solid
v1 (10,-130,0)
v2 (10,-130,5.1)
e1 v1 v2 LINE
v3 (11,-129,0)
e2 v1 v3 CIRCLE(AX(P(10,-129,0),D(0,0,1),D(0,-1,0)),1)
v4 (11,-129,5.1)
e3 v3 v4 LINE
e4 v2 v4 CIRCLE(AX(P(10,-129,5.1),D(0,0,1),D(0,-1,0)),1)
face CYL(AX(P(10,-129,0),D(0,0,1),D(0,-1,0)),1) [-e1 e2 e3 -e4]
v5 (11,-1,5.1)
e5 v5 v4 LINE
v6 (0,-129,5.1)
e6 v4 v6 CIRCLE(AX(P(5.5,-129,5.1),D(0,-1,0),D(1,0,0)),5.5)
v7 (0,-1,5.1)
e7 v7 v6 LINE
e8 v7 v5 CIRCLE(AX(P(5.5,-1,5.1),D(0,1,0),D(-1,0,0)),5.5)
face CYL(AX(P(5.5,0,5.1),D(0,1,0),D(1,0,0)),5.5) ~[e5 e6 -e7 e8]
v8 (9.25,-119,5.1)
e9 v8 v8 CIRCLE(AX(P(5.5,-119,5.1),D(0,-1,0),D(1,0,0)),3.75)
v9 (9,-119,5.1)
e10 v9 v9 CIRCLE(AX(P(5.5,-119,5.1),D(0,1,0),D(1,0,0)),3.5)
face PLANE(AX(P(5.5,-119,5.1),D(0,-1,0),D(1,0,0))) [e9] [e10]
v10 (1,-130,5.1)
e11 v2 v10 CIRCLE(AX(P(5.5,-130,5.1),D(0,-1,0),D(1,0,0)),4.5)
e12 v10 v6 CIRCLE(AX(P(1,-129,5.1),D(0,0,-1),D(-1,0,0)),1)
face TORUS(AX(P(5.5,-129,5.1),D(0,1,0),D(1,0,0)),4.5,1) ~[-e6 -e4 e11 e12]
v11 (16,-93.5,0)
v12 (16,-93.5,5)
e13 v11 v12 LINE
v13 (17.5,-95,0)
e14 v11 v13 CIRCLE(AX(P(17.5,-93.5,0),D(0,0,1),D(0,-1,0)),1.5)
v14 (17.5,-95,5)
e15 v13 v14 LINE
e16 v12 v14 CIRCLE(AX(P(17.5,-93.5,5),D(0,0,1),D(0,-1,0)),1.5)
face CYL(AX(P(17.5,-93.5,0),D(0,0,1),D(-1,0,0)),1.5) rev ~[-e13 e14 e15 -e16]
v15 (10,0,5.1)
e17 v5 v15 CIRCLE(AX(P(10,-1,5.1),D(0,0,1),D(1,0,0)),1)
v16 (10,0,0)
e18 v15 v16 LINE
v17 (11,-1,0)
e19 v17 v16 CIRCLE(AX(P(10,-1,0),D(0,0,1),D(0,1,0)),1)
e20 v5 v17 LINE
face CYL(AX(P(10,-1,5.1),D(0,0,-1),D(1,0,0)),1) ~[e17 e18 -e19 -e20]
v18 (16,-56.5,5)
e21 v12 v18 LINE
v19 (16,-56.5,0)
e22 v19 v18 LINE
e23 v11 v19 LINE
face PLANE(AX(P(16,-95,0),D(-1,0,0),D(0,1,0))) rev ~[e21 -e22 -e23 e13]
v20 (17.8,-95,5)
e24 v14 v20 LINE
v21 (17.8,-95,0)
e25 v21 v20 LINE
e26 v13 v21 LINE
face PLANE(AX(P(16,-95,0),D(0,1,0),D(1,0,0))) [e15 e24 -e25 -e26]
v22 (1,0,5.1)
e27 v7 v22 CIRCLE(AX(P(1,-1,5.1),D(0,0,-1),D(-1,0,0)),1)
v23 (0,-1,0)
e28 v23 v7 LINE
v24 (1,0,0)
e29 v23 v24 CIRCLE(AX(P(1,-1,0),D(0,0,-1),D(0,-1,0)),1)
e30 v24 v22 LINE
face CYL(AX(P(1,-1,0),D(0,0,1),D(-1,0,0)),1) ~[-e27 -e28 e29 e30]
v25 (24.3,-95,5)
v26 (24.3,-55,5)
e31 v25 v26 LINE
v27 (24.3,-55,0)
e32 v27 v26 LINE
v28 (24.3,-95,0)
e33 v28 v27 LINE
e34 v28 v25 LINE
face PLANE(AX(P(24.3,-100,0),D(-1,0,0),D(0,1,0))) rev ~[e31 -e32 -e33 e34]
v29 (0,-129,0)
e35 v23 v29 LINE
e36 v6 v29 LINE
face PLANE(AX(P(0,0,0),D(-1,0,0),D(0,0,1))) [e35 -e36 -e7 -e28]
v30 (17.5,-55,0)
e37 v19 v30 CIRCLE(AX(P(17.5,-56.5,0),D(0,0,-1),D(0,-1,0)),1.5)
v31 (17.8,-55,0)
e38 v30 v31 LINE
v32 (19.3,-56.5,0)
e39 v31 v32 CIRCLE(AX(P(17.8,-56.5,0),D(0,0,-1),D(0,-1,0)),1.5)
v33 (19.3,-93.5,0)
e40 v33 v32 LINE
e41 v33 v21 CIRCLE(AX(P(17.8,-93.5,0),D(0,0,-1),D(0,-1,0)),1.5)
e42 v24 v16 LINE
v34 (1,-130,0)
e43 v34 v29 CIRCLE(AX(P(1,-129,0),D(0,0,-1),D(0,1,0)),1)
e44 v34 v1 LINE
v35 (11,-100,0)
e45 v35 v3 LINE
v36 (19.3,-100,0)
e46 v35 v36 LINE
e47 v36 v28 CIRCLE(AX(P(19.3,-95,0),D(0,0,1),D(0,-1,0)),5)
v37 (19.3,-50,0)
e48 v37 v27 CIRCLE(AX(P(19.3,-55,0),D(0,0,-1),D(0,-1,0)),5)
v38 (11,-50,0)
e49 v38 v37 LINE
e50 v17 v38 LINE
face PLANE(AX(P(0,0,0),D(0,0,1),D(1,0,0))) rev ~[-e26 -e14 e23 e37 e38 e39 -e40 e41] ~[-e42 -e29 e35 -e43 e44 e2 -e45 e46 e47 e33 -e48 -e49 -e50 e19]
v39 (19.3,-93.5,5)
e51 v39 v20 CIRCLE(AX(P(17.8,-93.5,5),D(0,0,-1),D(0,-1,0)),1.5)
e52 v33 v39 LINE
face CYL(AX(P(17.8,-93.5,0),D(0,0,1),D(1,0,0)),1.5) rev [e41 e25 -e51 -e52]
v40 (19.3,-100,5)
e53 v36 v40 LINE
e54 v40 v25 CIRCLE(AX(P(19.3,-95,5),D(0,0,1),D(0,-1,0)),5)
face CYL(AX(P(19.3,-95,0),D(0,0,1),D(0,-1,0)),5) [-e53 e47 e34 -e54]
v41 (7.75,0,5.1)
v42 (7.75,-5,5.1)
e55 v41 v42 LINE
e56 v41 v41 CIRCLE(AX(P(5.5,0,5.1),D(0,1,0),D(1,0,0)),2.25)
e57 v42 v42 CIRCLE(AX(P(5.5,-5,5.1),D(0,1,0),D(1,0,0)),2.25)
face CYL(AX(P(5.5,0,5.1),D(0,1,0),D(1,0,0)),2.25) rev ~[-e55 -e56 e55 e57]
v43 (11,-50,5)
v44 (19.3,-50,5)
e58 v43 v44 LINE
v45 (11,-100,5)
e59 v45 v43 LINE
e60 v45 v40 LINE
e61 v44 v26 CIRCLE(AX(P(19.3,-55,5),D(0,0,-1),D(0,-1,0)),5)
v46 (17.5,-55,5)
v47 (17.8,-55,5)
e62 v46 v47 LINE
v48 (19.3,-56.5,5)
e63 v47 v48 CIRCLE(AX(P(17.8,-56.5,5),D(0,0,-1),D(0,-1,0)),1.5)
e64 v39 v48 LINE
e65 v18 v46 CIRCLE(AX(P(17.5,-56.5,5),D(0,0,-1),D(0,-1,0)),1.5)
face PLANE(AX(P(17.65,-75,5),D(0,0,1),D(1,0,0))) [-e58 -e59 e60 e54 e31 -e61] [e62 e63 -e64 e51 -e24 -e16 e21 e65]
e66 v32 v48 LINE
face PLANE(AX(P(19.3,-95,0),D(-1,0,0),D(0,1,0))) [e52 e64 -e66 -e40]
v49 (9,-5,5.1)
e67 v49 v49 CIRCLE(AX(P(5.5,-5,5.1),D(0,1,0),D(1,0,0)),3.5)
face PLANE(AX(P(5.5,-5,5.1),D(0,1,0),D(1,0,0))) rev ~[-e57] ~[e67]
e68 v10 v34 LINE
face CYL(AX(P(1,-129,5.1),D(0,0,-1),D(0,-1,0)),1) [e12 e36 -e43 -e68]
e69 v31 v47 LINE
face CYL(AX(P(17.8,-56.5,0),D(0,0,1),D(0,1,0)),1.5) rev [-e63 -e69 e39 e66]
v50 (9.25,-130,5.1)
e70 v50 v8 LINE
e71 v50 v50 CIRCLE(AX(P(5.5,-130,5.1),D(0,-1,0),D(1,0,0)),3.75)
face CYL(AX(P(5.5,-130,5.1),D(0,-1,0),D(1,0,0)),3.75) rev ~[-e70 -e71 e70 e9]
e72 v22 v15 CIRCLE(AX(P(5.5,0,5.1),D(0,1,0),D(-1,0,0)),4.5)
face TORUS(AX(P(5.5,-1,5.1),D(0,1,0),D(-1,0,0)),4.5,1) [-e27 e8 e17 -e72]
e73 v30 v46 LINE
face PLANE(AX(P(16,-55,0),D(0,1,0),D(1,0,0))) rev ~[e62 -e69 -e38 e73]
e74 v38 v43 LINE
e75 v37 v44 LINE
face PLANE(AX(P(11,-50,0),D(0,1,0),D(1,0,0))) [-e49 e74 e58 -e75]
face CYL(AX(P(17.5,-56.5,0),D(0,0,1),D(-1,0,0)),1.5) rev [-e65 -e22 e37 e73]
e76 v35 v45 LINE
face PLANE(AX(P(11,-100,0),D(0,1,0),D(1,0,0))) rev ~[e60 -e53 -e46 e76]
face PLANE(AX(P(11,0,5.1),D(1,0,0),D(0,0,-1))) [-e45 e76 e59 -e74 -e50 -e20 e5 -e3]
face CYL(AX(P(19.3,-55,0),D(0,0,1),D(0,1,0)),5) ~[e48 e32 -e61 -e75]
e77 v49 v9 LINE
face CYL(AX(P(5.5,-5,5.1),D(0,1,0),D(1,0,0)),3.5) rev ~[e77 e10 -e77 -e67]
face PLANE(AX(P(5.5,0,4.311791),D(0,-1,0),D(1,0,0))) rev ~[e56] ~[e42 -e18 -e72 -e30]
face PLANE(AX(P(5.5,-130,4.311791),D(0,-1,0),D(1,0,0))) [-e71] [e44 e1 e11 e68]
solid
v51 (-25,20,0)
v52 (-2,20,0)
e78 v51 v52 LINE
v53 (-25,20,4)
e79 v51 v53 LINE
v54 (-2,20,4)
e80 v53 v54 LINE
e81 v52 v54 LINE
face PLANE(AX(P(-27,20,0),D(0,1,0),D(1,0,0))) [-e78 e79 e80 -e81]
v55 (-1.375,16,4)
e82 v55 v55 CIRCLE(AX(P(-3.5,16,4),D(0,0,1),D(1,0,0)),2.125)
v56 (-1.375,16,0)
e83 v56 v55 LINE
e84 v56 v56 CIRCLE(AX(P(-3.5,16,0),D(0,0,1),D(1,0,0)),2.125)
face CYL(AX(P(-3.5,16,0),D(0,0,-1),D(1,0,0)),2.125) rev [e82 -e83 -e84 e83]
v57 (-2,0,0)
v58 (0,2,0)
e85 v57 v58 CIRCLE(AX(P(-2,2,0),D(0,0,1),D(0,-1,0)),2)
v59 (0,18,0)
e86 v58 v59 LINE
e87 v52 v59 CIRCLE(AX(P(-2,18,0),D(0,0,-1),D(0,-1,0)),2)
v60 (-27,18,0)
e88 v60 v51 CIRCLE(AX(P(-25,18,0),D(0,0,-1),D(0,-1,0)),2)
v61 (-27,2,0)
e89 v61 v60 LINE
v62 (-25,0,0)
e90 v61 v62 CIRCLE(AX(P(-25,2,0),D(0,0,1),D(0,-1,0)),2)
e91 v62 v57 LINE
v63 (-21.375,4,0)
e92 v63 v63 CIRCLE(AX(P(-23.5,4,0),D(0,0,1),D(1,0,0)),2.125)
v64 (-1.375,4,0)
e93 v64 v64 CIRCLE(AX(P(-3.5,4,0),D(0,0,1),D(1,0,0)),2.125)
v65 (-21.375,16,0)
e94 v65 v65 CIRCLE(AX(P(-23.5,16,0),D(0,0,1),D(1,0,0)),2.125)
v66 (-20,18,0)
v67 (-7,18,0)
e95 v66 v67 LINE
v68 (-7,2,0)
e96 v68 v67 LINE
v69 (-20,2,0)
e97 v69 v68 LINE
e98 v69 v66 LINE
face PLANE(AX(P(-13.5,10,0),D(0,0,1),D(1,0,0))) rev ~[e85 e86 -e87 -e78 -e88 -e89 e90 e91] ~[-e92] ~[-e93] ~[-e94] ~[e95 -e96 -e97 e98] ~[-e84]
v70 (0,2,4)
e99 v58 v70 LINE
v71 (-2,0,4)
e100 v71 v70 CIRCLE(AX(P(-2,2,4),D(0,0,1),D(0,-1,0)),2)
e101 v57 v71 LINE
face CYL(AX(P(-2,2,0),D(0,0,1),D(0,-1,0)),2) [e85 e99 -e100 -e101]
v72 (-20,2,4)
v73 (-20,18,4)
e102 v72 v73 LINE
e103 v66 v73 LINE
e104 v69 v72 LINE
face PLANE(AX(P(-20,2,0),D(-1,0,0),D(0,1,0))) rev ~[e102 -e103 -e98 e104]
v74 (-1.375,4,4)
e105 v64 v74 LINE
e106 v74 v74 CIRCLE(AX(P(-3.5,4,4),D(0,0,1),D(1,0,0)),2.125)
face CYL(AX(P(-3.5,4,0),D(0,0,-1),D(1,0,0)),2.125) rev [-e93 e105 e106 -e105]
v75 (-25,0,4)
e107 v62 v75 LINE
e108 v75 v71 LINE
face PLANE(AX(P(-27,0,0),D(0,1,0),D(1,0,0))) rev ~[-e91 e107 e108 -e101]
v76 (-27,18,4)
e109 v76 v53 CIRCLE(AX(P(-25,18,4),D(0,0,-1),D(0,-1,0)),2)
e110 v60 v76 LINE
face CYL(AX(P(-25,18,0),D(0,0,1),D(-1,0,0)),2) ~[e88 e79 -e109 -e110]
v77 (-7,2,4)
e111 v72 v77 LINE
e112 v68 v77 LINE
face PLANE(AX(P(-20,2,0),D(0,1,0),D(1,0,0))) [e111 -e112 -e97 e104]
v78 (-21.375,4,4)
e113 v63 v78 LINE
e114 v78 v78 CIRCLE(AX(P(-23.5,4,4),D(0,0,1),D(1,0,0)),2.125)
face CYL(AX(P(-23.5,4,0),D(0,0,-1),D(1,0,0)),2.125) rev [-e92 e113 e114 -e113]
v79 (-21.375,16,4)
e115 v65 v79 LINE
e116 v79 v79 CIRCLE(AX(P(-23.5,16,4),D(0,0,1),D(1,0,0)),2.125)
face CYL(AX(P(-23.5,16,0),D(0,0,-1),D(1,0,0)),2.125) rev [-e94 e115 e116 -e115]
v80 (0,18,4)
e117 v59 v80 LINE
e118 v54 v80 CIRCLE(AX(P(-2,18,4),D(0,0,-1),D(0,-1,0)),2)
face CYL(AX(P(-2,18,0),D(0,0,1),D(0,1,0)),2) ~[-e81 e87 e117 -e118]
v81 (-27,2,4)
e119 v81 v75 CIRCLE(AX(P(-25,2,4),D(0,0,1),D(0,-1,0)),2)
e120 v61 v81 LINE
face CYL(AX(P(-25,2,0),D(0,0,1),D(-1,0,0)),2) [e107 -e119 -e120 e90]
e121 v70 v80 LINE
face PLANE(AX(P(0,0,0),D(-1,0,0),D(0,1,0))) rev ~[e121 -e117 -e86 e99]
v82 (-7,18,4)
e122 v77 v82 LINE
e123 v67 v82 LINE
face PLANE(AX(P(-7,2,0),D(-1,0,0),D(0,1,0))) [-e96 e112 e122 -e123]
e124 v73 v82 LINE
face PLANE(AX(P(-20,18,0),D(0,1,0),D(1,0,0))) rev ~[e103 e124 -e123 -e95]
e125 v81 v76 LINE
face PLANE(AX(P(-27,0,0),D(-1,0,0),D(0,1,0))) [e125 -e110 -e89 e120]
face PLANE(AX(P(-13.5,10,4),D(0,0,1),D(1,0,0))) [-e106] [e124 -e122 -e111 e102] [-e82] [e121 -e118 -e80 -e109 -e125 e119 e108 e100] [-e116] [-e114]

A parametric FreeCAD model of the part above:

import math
import FreeCAD as App
import Part
import Sketcher


def edges_at(feature, points):
    """Names of the edges that pass closest to the given points."""
    edges = feature.Shape.Edges
    near = lambda p: min(range(len(edges)), key=lambda i: edges[i].distToShape(Part.Vertex(*p))[0])
    return sorted({f"Edge{near(p) + 1}" for p in points})


def add_polygon(sketch, points):
    """Adds a closed chain of lines whose ends are joined by coincident constraints."""
    first, n = sketch.GeometryCount, len(points)
    for a, b in zip(points, points[1:] + points[:1]):
        sketch.addGeometry(Part.LineSegment(App.Vector(*a, 0), App.Vector(*b, 0)), False)
    for i in range(n):
        sketch.addConstraint(Sketcher.Constraint("Coincident", first + i, 2, first + (i + 1) % n, 1))

doc = App.newDocument("Part")
body = doc.addObject("PartDesign::Body", "Body")

# Sketch on XZ plane
sketch1 = doc.addObject("Sketcher::SketchObject", "Sketch")
body.addObject(sketch1)
sketch1.AttachmentSupport = (doc.XZ_Plane, [""])
sketch1.MapMode = "FlatFace"
sketch1.addGeometry([
    Part.ArcOfCircle(Part.Circle(App.Vector(6, 5, 0), App.Vector(0, 0, 1), 6), math.radians(0), math.radians(180)),
    Part.LineSegment(App.Vector(0, 5, 0), App.Vector(0, 0, 0)),
    Part.LineSegment(App.Vector(0, 0, 0), App.Vector(11, 0, 0)),
    Part.LineSegment(App.Vector(11, 0, 0), App.Vector(11, 5, 0)),
], False)
sketch1.addConstraint([
    Sketcher.Constraint("Tangent", 0, 2, 1, 1),
    Sketcher.Constraint("Coincident", 1, 2, 2, 1),
    Sketcher.Constraint("Coincident", 2, 2, 3, 1),
    Sketcher.Constraint("Tangent", 3, 2, 0, 1),
    Sketcher.Constraint("Vertical", 1),
    Sketcher.Constraint("Horizontal", 2),
    Sketcher.Constraint("Vertical", 3),
    Sketcher.Constraint("Coincident", 1, 2, -1, 1),
    Sketcher.Constraint("Radius", 0, 5.5),
    Sketcher.Constraint("DistanceY", 1, 2, 1, 1, 5.1),
])
pad1 = doc.addObject("PartDesign::Pad", "Pad")
body.addObject(pad1)
pad1.Profile = sketch1
pad1.Length = 130

# Sketch on XZ plane
sketch2 = doc.addObject("Sketcher::SketchObject", "Sketch001")
body.addObject(sketch2)
sketch2.AttachmentSupport = (doc.XZ_Plane, [""])
sketch2.MapMode = "FlatFace"
sketch2.addGeometry(Part.Circle(App.Vector(5.5, 5.1, 0), App.Vector(0, 0, 1), 2.2), False)
sketch2.addConstraint([
    Sketcher.Constraint("Diameter", 0, 4.5),
    Sketcher.Constraint("DistanceX", -1, 1, 0, 3, 5.5),
    Sketcher.Constraint("DistanceY", -1, 1, 0, 3, 5.1),
])
pocket1 = doc.addObject("PartDesign::Pocket", "Pocket")
body.addObject(pocket1)
pocket1.Profile = sketch2
pocket1.Length = 5
pocket1.Reversed = True

# Sketch on XZ plane
sketch3 = doc.addObject("Sketcher::SketchObject", "Sketch002")
body.addObject(sketch3)
sketch3.AttachmentSupport = (doc.XZ_Plane, [""])
sketch3.MapMode = "FlatFace"
sketch3.AttachmentOffset = App.Placement(App.Vector(0, 0, 5), App.Rotation())
sketch3.addGeometry(Part.Circle(App.Vector(5.5, 5.1, 0), App.Vector(0, 0, 1), 3.5), False)
sketch3.addConstraint([
    Sketcher.Constraint("Diameter", 0, 7.0),
    Sketcher.Constraint("DistanceX", -1, 1, 0, 3, 5.5),
    Sketcher.Constraint("DistanceY", -1, 1, 0, 3, 5.1),
])
pocket2 = doc.addObject("PartDesign::Pocket", "Pocket001")
body.addObject(pocket2)
pocket2.Profile = sketch3
pocket2.Length = 114
pocket2.Reversed = True

# Sketch on XZ plane
sketch4 = doc.addObject("Sketcher::SketchObject", "Sketch003")
body.addObject(sketch4)
sketch4.AttachmentSupport = (doc.XZ_Plane, [""])
sketch4.MapMode = "FlatFace"
sketch4.AttachmentOffset = App.Placement(App.Vector(0, 0, 130), App.Rotation())
sketch4.addGeometry(Part.Circle(App.Vector(5.5, 5.1, 0), App.Vector(0, 0, 1), 3.8), False)
sketch4.addConstraint([
    Sketcher.Constraint("Diameter", 0, 7.5),
    Sketcher.Constraint("DistanceX", -1, 1, 0, 3, 5.5),
    Sketcher.Constraint("DistanceY", -1, 1, 0, 3, 5.1),
])
pocket3 = doc.addObject("PartDesign::Pocket", "Pocket002")
body.addObject(pocket3)
pocket3.Profile = sketch4
pocket3.Length = 11

# Sketch on XY plane
sketch5 = doc.addObject("Sketcher::SketchObject", "Sketch004")
body.addObject(sketch5)
sketch5.AttachmentSupport = (doc.XY_Plane, [""])
sketch5.MapMode = "FlatFace"
add_polygon(sketch5, [(11, -50), (11, -100), (24.3, -100), (24.3, -50)])  # lines 0-3
add_polygon(sketch5, [(19.3, -95), (16, -95), (16, -55), (19.3, -55)])  # lines 4-7
sketch5.addConstraint([
    Sketcher.Constraint("Vertical", 0),
    Sketcher.Constraint("Horizontal", 1),
    Sketcher.Constraint("Vertical", 2),
    Sketcher.Constraint("Horizontal", 3),
    Sketcher.Constraint("Horizontal", 4),
    Sketcher.Constraint("Vertical", 5),
    Sketcher.Constraint("Horizontal", 6),
    Sketcher.Constraint("Vertical", 7),
    Sketcher.Constraint("DistanceY", 0, 2, 0, 1, 50.0),
    Sketcher.Constraint("DistanceY", 5, 1, 5, 2, 40.0),
    Sketcher.Constraint("DistanceX", 1, 1, 1, 2, 13.3),
    Sketcher.Constraint("DistanceX", 4, 2, 4, 1, 3.3),
    Sketcher.Constraint("DistanceX", -1, 1, 0, 2, 11.0),
    Sketcher.Constraint("DistanceY", 0, 2, -1, 1, 100.0),
    Sketcher.Constraint("DistanceX", -1, 1, 4, 2, 16.0),
    Sketcher.Constraint("DistanceY", 4, 2, -1, 1, 95.0),
])
pad2 = doc.addObject("PartDesign::Pad", "Pad001")
body.addObject(pad2)
pad2.Profile = sketch5
pad2.Length = 5
doc.recompute()

fillet = doc.addObject("PartDesign::Fillet", "Fillet")
body.addObject(fillet)
fillet.Base = (pad2, edges_at(pad2, [(24.3, -50, 2.5), (24.3, -100, 2.5)]))
fillet.Radius = 5
doc.recompute()

fillet2 = doc.addObject("PartDesign::Fillet", "Fillet001")
body.addObject(fillet2)
fillet2.Base = (fillet, edges_at(fillet, [
    (16, -95, 2.5),
    (19.3, -95, 2.5),
    (19.3, -55, 2.5),
    (16, -55, 2.5),
]))
fillet2.Radius = 1.5
doc.recompute()

fillet3 = doc.addObject("PartDesign::Fillet", "Fillet002")
body.addObject(fillet3)
fillet3.Base = (fillet2, edges_at(fillet2, [
    (5.5, -130, 10.6),
    (11, -130, 2.55),
    (11, 0, 2.55),
    (5.5, 0, 10.6),
    (0, 0, 2.55),
    (0, -130, 2.55),
]))
fillet3.Radius = 1
body2 = doc.addObject("PartDesign::Body", "Body001")

# Sketch on XY plane
sketch6 = doc.addObject("Sketcher::SketchObject", "Sketch005")
body2.addObject(sketch6)
sketch6.AttachmentSupport = (doc.getObject("XY_Plane001"), [""])
sketch6.MapMode = "FlatFace"
add_polygon(sketch6, [(-27, 20), (-27, 0), (0, 0), (0, 20)])  # lines 0-3
sketch6.addGeometry(Part.Circle(App.Vector(-23.5, 4, 0), App.Vector(0, 0, 1), 2.1), False)  # 4
sketch6.addGeometry(Part.Circle(App.Vector(-3.5, 4, 0), App.Vector(0, 0, 1), 2.1), False)  # 5
sketch6.addGeometry(Part.Circle(App.Vector(-23.5, 16, 0), App.Vector(0, 0, 1), 2.1), False)  # 6
add_polygon(sketch6, [(-7, 2), (-20, 2), (-20, 18), (-7, 18)])  # lines 7-10
sketch6.addGeometry(Part.Circle(App.Vector(-3.5, 16, 0), App.Vector(0, 0, 1), 2.1), False)  # 11
sketch6.addConstraint([
    Sketcher.Constraint("Vertical", 0),
    Sketcher.Constraint("Horizontal", 1),
    Sketcher.Constraint("Vertical", 2),
    Sketcher.Constraint("Horizontal", 3),
    Sketcher.Constraint("Horizontal", 7),
    Sketcher.Constraint("Vertical", 8),
    Sketcher.Constraint("Horizontal", 9),
    Sketcher.Constraint("Vertical", 10),
    Sketcher.Constraint("Coincident", 1, 2, -1, 1),
    Sketcher.Constraint("Equal", 4, 5),
    Sketcher.Constraint("Equal", 5, 6),
    Sketcher.Constraint("Equal", 6, 11),
    Sketcher.Constraint("Horizontal", 4, 3, 5, 3),
    Sketcher.Constraint("Horizontal", 6, 3, 11, 3),
    Sketcher.Constraint("Vertical", 4, 3, 6, 3),
    Sketcher.Constraint("Vertical", 5, 3, 11, 3),
    Sketcher.Constraint("Diameter", 4, 4.25),
    Sketcher.Constraint("DistanceX", 1, 1, 1, 2, 27.0),
    Sketcher.Constraint("DistanceX", 7, 2, 7, 1, 13.0),
    Sketcher.Constraint("DistanceY", 0, 2, 0, 1, 20.0),
    Sketcher.Constraint("DistanceY", 8, 1, 8, 2, 16.0),
    Sketcher.Constraint("DistanceY", -1, 1, 4, 3, 4.0),
    Sketcher.Constraint("DistanceY", -1, 1, 6, 3, 16.0),
    Sketcher.Constraint("DistanceX", 7, 2, -1, 1, 20.0),
    Sketcher.Constraint("DistanceY", -1, 1, 7, 2, 2.0),
    Sketcher.Constraint("DistanceX", 4, 3, 5, 3, 20.0),
    Sketcher.Constraint("DistanceX", 4, 3, -1, 1, 23.5),
])
pad3 = doc.addObject("PartDesign::Pad", "Pad002")
body2.addObject(pad3)
pad3.Profile = sketch6
pad3.Length = 4
doc.recompute()

fillet4 = doc.addObject("PartDesign::Fillet", "Fillet003")
body2.addObject(fillet4)
fillet4.Base = (pad3, edges_at(pad3, [
    (-27, 20, 2),
    (-27, 0, 2),
    (0, 0, 2),
    (0, 20, 2),
]))
fillet4.Radius = 2

doc.recompute()
